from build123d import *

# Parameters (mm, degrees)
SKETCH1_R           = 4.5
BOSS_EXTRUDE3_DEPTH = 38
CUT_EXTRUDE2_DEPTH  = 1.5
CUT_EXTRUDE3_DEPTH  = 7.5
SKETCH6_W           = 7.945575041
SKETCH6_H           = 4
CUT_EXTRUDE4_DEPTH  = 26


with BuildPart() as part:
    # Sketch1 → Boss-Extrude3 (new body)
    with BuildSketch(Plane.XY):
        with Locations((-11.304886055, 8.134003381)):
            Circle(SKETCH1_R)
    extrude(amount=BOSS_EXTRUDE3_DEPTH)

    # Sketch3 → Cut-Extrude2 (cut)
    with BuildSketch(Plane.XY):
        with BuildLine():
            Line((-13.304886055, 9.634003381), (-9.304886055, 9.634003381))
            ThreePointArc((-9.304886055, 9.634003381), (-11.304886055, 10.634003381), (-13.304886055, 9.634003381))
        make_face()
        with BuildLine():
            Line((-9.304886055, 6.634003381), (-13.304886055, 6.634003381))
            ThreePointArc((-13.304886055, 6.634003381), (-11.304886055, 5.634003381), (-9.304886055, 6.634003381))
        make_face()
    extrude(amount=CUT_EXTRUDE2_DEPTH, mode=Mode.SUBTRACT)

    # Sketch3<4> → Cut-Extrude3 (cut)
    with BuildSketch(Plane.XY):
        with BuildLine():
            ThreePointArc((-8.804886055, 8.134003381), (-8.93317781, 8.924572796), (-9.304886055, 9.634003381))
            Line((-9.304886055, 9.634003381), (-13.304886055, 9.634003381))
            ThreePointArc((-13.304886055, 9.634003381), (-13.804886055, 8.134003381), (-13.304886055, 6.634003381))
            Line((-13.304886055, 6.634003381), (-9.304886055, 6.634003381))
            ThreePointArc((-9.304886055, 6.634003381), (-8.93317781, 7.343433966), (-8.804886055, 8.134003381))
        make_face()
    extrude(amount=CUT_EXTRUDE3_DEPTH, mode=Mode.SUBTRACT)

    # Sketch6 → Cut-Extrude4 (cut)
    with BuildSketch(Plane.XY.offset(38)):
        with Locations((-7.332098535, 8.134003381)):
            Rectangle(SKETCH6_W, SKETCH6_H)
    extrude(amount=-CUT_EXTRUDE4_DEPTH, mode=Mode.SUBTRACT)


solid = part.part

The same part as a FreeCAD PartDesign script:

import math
import FreeCAD as App
import Part
import Sketcher

V = App.Vector

doc = App.newDocument("Part")
params = doc.addObject("Spreadsheet::Sheet", "Params")
for row, (alias, value) in enumerate([
    ("sketch1_diameter", "9 mm"),
    ("pad1_length", "38 mm"),
    ("sketch2_radius", "2.5 mm"),
    ("sketch2_width", "4 mm"),
    ("pocket1_length", "1.5 mm"),
    ("sketch3_radius", "2.5 mm"),
    ("sketch3_width", "4 mm"),
    ("pocket2_length", "7.5 mm"),
    ("sketch4_height", "4 mm"),
    ("pocket3_length", "26 mm"),
], start=1):
    params.set(f"A{row}", alias)
    params.set(f"B{row}", "=" + value)
    params.setAlias(f"B{row}", alias)

body = doc.addObject("PartDesign::Body", "Body")

sketch1 = body.newObject("Sketcher::SketchObject", "Sketch")
sketch1.AttachmentSupport = (doc.getObject("XY_Plane"), [""])
sketch1.MapMode = "FlatFace"
sketch1.addGeometry(Part.Circle(V(-11.3, 8.1, 0), V(0, 0, 1), 4.5), False)
sketch1.addConstraint([
    Sketcher.Constraint("Diameter", 0, 9.0),
    Sketcher.Constraint("DistanceX", 0, 3, -1, 1, 11.304886),
    Sketcher.Constraint("DistanceY", -1, 1, 0, 3, 8.134003),
])
sketch1.setExpression("Constraints[0]", "Params.sketch1_diameter")
pad1 = body.newObject("PartDesign::Pad", "Pad")
pad1.Profile = sketch1
pad1.setExpression("Length", "Params.pad1_length")

sketch2 = body.newObject("Sketcher::SketchObject", "Sketch001")
sketch2.AttachmentSupport = (doc.getObject("XY_Plane"), [""])
sketch2.MapMode = "FlatFace"
sketch2.addGeometry([
    Part.LineSegment(V(-13.3, 9.6, 0), V(-9.3, 9.6, 0)),
    Part.ArcOfCircle(Part.Circle(V(-11.3, 8.1, 0), V(0, 0, 1), 2.5), math.radians(37), math.radians(143)),
    Part.LineSegment(V(-9.3, 6.6, 0), V(-13.3, 6.6, 0)),
    Part.ArcOfCircle(Part.Circle(V(-11.3, 8.1, 0), V(0, 0, 1), 2.5), math.radians(-143), math.radians(-37)),
], False)
sketch2.addConstraint([
    Sketcher.Constraint("Coincident", 0, 1, 1, 2),
    Sketcher.Constraint("Coincident", 1, 1, 0, 2),
    Sketcher.Constraint("Coincident", 2, 1, 3, 2),
    Sketcher.Constraint("Coincident", 3, 1, 2, 2),
    Sketcher.Constraint("Horizontal", 0),
    Sketcher.Constraint("Horizontal", 2),
    Sketcher.Constraint("Coincident", 3, 3, 1, 3),
    Sketcher.Constraint("Equal", 1, 3),
    Sketcher.Constraint("Vertical", 1, 1, 2, 1),
    Sketcher.Constraint("Radius", 1, 2.5),
    Sketcher.Constraint("DistanceX", 0, 1, 0, 2, 4.0),
    Sketcher.Constraint("DistanceX", 1, 3, -1, 1, 11.304886),
    Sketcher.Constraint("DistanceY", -1, 1, 1, 3, 8.134003),
])
sketch2.setExpression("Constraints[9]", "Params.sketch2_radius")
sketch2.setExpression("Constraints[10]", "Params.sketch2_width")
pocket1 = body.newObject("PartDesign::Pocket", "Pocket")
pocket1.Profile = sketch2
pocket1.setExpression("Length", "Params.pocket1_length")
pocket1.Reversed = True

sketch3 = body.newObject("Sketcher::SketchObject", "Sketch002")
sketch3.AttachmentSupport = (doc.getObject("XY_Plane"), [""])
sketch3.MapMode = "FlatFace"
sketch3.addGeometry([
    Part.ArcOfCircle(Part.Circle(V(-11.3, 8.1, 0), V(0, 0, 1), 2.5), math.radians(0), math.radians(37)),
    Part.LineSegment(V(-9.3, 9.6, 0), V(-13.3, 9.6, 0)),
    Part.ArcOfCircle(Part.Circle(V(-11.3, 8.1, 0), V(0, 0, 1), 2.5), math.radians(143), math.radians(217)),
    Part.LineSegment(V(-13.3, 6.6, 0), V(-9.3, 6.6, 0)),
    Part.ArcOfCircle(Part.Circle(V(-11.3, 8.1, 0), V(0, 0, 1), 2.5), math.radians(-37), math.radians(0)),
], False)
sketch3.addConstraint([
    Sketcher.Constraint("Coincident", 0, 2, 1, 1),
    Sketcher.Constraint("Coincident", 1, 2, 2, 1),
    Sketcher.Constraint("Coincident", 2, 2, 3, 1),
    Sketcher.Constraint("Coincident", 3, 2, 4, 1),
    Sketcher.Constraint("Tangent", 4, 2, 0, 1),
    Sketcher.Constraint("Horizontal", 1),
    Sketcher.Constraint("Horizontal", 3),
    Sketcher.Constraint("Coincident", 2, 3, 0, 3),
    Sketcher.Constraint("Equal", 0, 2),
    Sketcher.Constraint("Equal", 2, 4),
    Sketcher.Constraint("Horizontal", 2, 3, 4, 2),
    Sketcher.Constraint("Vertical", 1, 2, 2, 2),
    Sketcher.Constraint("Radius", 0, 2.5),
    Sketcher.Constraint("DistanceX", 1, 2, 1, 1, 4.0),
    Sketcher.Constraint("DistanceX", 0, 3, -1, 1, 11.304886),
    Sketcher.Constraint("DistanceY", -1, 1, 0, 3, 8.134003),
])
sketch3.setExpression("Constraints[12]", "Params.sketch3_radius")
sketch3.setExpression("Constraints[13]", "Params.sketch3_width")
pocket2 = body.newObject("PartDesign::Pocket", "Pocket001")
pocket2.Profile = sketch3
pocket2.setExpression("Length", "Params.pocket2_length")
pocket2.Reversed = True

sketch4 = body.newObject("Sketcher::SketchObject", "Sketch003")
sketch4.AttachmentSupport = (doc.getObject("XY_Plane"), [""])
sketch4.MapMode = "FlatFace"
sketch4.AttachmentOffset = App.Placement(V(0, 0, 38), App.Rotation())
sketch4.addGeometry([
    Part.LineSegment(V(-11.3, 10.1, 0), V(-11.3, 6.1, 0)),
    Part.LineSegment(V(-11.3, 6.1, 0), V(-3.4, 6.1, 0)),
    Part.LineSegment(V(-3.4, 6.1, 0), V(-3.4, 10.1, 0)),
    Part.LineSegment(V(-3.4, 10.1, 0), V(-11.3, 10.1, 0)),
], False)
sketch4.addConstraint([
    Sketcher.Constraint("Coincident", 0, 2, 1, 1),
    Sketcher.Constraint("Coincident", 1, 2, 2, 1),
    Sketcher.Constraint("Coincident", 2, 2, 3, 1),
    Sketcher.Constraint("Coincident", 3, 2, 0, 1),
    Sketcher.Constraint("Vertical", 0),
    Sketcher.Constraint("Horizontal", 1),
    Sketcher.Constraint("Vertical", 2),
    Sketcher.Constraint("Horizontal", 3),
    Sketcher.Constraint("DistanceY", 0, 2, 0, 1, 4.0),
    Sketcher.Constraint("DistanceX", 1, 1, 1, 2, 7.945575),
    Sketcher.Constraint("DistanceX", 1, 2, -1, 1, 3.359311),
    Sketcher.Constraint("DistanceY", -1, 1, 0, 2, 6.134003),
])
sketch4.setExpression("Constraints[8]", "Params.sketch4_height")
pocket3 = body.newObject("PartDesign::Pocket", "Pocket002")
pocket3.Profile = sketch4
pocket3.setExpression("Length", "Params.pocket3_length")

doc.recompute()
